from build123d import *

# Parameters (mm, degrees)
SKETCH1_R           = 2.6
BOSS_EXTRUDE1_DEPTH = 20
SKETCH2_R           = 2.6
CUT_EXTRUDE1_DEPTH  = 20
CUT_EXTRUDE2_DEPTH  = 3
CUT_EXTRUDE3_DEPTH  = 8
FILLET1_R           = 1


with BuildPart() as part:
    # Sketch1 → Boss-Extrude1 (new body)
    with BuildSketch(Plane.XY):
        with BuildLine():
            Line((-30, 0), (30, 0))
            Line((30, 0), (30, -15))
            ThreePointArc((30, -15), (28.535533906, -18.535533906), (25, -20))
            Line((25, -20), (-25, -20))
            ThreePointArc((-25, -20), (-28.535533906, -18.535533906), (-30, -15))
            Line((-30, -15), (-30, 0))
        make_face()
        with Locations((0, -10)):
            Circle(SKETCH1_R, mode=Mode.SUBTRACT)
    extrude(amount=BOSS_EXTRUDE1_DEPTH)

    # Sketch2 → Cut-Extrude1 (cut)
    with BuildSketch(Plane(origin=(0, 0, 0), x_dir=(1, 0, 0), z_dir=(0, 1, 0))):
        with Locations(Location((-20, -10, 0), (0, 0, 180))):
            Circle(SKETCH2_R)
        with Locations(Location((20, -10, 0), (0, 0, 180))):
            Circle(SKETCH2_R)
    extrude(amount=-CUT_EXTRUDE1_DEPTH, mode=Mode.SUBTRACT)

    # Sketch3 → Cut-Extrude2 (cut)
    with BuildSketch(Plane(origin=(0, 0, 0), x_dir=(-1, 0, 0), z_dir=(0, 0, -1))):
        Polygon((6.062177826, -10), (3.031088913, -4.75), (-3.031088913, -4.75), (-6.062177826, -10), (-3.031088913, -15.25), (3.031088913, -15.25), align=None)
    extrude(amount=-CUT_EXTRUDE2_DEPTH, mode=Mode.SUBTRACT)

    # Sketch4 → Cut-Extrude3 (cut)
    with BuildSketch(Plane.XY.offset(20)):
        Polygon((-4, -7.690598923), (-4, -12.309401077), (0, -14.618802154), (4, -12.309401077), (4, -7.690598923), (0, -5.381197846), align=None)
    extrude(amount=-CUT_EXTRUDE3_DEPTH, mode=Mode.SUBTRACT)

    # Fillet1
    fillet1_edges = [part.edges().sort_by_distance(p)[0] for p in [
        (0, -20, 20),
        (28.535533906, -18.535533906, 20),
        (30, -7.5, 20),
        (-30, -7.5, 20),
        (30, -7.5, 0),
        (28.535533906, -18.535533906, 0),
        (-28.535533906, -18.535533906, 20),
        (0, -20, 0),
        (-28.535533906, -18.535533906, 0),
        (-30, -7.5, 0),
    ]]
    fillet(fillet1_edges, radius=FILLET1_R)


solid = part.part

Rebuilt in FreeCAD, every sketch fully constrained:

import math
import FreeCAD as App
import Part
import Sketcher

V = App.Vector
Q = App.Units.Quantity


def edges_at(feature, points):
    """Names of the edges that pass closest to the given points."""
    edges = feature.Shape.Edges
    near = lambda p: min(range(len(edges)), key=lambda i: edges[i].distToShape(Part.Vertex(*p))[0])
    return sorted({f"Edge{near(p) + 1}" for p in points})

doc = App.newDocument("Part")
body = doc.addObject("PartDesign::Body", "Body")

sketch1 = doc.addObject("Sketcher::SketchObject", "Sketch")
body.addObject(sketch1)
sketch1.AttachmentSupport = (doc.XY_Plane, [""])
sketch1.MapMode = "FlatFace"
sketch1.addGeometry(Part.LineSegment(V(30, 0, 0), V(-30, 0, 0)), False)
sketch1.addGeometry(Part.LineSegment(V(-30, 0, 0), V(-30, -15, 0)), False)
sketch1.addGeometry(Part.ArcOfCircle(Part.Circle(V(-25, -15, 0), V(0, 0, 1), 5), math.radians(180), math.radians(270)), False)
sketch1.addGeometry(Part.LineSegment(V(-25, -20, 0), V(25, -20, 0)), False)
sketch1.addGeometry(Part.ArcOfCircle(Part.Circle(V(25, -15, 0), V(0, 0, 1), 5), math.radians(-90), math.radians(0)), False)
sketch1.addGeometry(Part.LineSegment(V(30, -15, 0), V(30, 0, 0)), False)
sketch1.addGeometry(Part.Circle(V(0, -10, 0), V(0, 0, 1), 2.6), False)
sketch1.addConstraint(Sketcher.Constraint("Coincident", 0, 2, 1, 1))
sketch1.addConstraint(Sketcher.Constraint("Tangent", 1, 2, 2, 1))
sketch1.addConstraint(Sketcher.Constraint("Tangent", 2, 2, 3, 1))
sketch1.addConstraint(Sketcher.Constraint("Tangent", 3, 2, 4, 1))
sketch1.addConstraint(Sketcher.Constraint("Tangent", 4, 2, 5, 1))
sketch1.addConstraint(Sketcher.Constraint("Coincident", 5, 2, 0, 1))
sketch1.addConstraint(Sketcher.Constraint("Horizontal", 0))
sketch1.addConstraint(Sketcher.Constraint("Vertical", 1))
sketch1.addConstraint(Sketcher.Constraint("Horizontal", 3))
sketch1.addConstraint(Sketcher.Constraint("Vertical", 5))
sketch1.addConstraint(Sketcher.Constraint("Equal", 2, 4))
sketch1.addConstraint(Sketcher.Constraint("Symmetric", 0, 2, 5, 2, -1, 1))
sketch1.addConstraint(Sketcher.Constraint("PointOnObject", 6, 3, -2))
sketch1.addConstraint(Sketcher.Constraint("Radius", 2, Q("5 mm")))
sketch1.addConstraint(Sketcher.Constraint("Diameter", 6, Q("5.2 mm")))
sketch1.addConstraint(Sketcher.Constraint("DistanceX", 0, 2, 0, 1, Q("60 mm")))
sketch1.addConstraint(Sketcher.Constraint("DistanceY", 1, 2, 1, 1, Q("15 mm")))
sketch1.addConstraint(Sketcher.Constraint("DistanceY", 6, 3, -1, 1, Q("10 mm")))
pad1 = doc.addObject("PartDesign::Pad", "Pad")
body.addObject(pad1)
pad1.Profile = sketch1
pad1.Length = 20

sketch2 = doc.addObject("Sketcher::SketchObject", "Sketch001")
body.addObject(sketch2)
sketch2.AttachmentSupport = (doc.XZ_Plane, [""])
sketch2.MapMode = "FlatFace"
sketch2.addGeometry(Part.Circle(V(-20, 10, 0), V(0, 0, 1), 2.6), False)
sketch2.addGeometry(Part.Circle(V(20, 10, 0), V(0, 0, 1), 2.6), False)
sketch2.addConstraint(Sketcher.Constraint("Equal", 0, 1))
sketch2.addConstraint(Sketcher.Constraint("Symmetric", 0, 3, 1, 3, -2))
sketch2.addConstraint(Sketcher.Constraint("Diameter", 0, Q("5.2 mm")))
sketch2.addConstraint(Sketcher.Constraint("DistanceX", 0, 3, -1, 1, Q("20 mm")))
sketch2.addConstraint(Sketcher.Constraint("DistanceY", -1, 1, 0, 3, Q("10 mm")))
pocket1 = doc.addObject("PartDesign::Pocket", "Pocket")
body.addObject(pocket1)
pocket1.Profile = sketch2
pocket1.Length = 20
pocket1.Reversed = True

sketch3 = doc.addObject("Sketcher::SketchObject", "Sketch002")
body.addObject(sketch3)
sketch3.AttachmentSupport = (doc.XY_Plane, [""])
sketch3.MapMode = "FlatFace"
sketch3.addGeometry(Part.LineSegment(V(-6, -10, 0), V(-3, -5, 0)), False)
sketch3.addGeometry(Part.LineSegment(V(-3, -5, 0), V(3, -5, 0)), False)
sketch3.addGeometry(Part.LineSegment(V(3, -5, 0), V(6, -10, 0)), False)
sketch3.addGeometry(Part.LineSegment(V(6, -10, 0), V(3, -15, 0)), False)
sketch3.addGeometry(Part.LineSegment(V(3, -15, 0), V(-3, -15, 0)), False)
sketch3.addGeometry(Part.LineSegment(V(-3, -15, 0), V(-6, -10, 0)), False)
sketch3.addConstraint(Sketcher.Constraint("Coincident", 0, 2, 1, 1))
sketch3.addConstraint(Sketcher.Constraint("Coincident", 1, 2, 2, 1))
sketch3.addConstraint(Sketcher.Constraint("Coincident", 2, 2, 3, 1))
sketch3.addConstraint(Sketcher.Constraint("Coincident", 3, 2, 4, 1))
sketch3.addConstraint(Sketcher.Constraint("Coincident", 4, 2, 5, 1))
sketch3.addConstraint(Sketcher.Constraint("Coincident", 5, 2, 0, 1))
sketch3.addConstraint(Sketcher.Constraint("Horizontal", 1))
sketch3.addConstraint(Sketcher.Constraint("Horizontal", 4))
sketch3.addConstraint(Sketcher.Constraint("Symmetric", 2, 2, 5, 2, -2))
sketch3.addConstraint(Sketcher.Constraint("Parallel", 0, 3))
sketch3.addConstraint(Sketcher.Constraint("Parallel", 2, 5))
sketch3.addConstraint(Sketcher.Constraint("Vertical", 1, 2, 3, 2))
sketch3.addConstraint(Sketcher.Constraint("Vertical", 0, 2, 4, 2))
sketch3.addConstraint(Sketcher.Constraint("Angle", 0, Q("60 deg")))
sketch3.addConstraint(Sketcher.Constraint("DistanceY", 2, 2, -1, 1, Q("10 mm")))
sketch3.addConstraint(Sketcher.Constraint("DistanceY", 3, 2, 1, 2, Q("10.5 mm")))
sketch3.addConstraint(Sketcher.Constraint("DistanceX", 1, 1, 1, 2, Q("6.062178 mm")))
pocket2 = doc.addObject("PartDesign::Pocket", "Pocket001")
body.addObject(pocket2)
pocket2.Profile = sketch3
pocket2.Length = 3
pocket2.Reversed = True

sketch4 = doc.addObject("Sketcher::SketchObject", "Sketch003")
body.addObject(sketch4)
sketch4.AttachmentSupport = (doc.XY_Plane, [""])
sketch4.MapMode = "FlatFace"
sketch4.AttachmentOffset = App.Placement(V(0, 0, 20), App.Rotation())
sketch4.addGeometry(Part.LineSegment(V(-4, -7.7, 0), V(-4, -12.3, 0)), False)
sketch4.addGeometry(Part.LineSegment(V(-4, -12.3, 0), V(0, -14.6, 0)), False)
sketch4.addGeometry(Part.LineSegment(V(0, -14.6, 0), V(4, -12.3, 0)), False)
sketch4.addGeometry(Part.LineSegment(V(4, -12.3, 0), V(4, -7.7, 0)), False)
sketch4.addGeometry(Part.LineSegment(V(4, -7.7, 0), V(0, -5.4, 0)), False)
sketch4.addGeometry(Part.LineSegment(V(0, -5.4, 0), V(-4, -7.7, 0)), False)
sketch4.addConstraint(Sketcher.Constraint("Coincident", 0, 2, 1, 1))
sketch4.addConstraint(Sketcher.Constraint("Coincident", 1, 2, 2, 1))
sketch4.addConstraint(Sketcher.Constraint("Coincident", 2, 2, 3, 1))
sketch4.addConstraint(Sketcher.Constraint("Coincident", 3, 2, 4, 1))
sketch4.addConstraint(Sketcher.Constraint("Coincident", 4, 2, 5, 1))
sketch4.addConstraint(Sketcher.Constraint("Coincident", 5, 2, 0, 1))
sketch4.addConstraint(Sketcher.Constraint("Vertical", 0))
sketch4.addConstraint(Sketcher.Constraint("Vertical", 3))
sketch4.addConstraint(Sketcher.Constraint("Symmetric", 0, 2, 2, 2, -2))
sketch4.addConstraint(Sketcher.Constraint("PointOnObject", 1, 2, -2))
sketch4.addConstraint(Sketcher.Constraint("PointOnObject", 4, 2, -2))
sketch4.addConstraint(Sketcher.Constraint("Parallel", 1, 4))
sketch4.addConstraint(Sketcher.Constraint("Parallel", 2, 5))
sketch4.addConstraint(Sketcher.Constraint("Angle", 1, Q("-30 deg")))
sketch4.addConstraint(Sketcher.Constraint("DistanceX", 0, 2, -1, 1, Q("4 mm")))
sketch4.addConstraint(Sketcher.Constraint("DistanceY", 0, 2, -1, 1, Q("12.309401 mm")))
sketch4.addConstraint(Sketcher.Constraint("DistanceY", 3, 2, -1, 1, Q("7.690599 mm")))
pocket3 = doc.addObject("PartDesign::Pocket", "Pocket002")
body.addObject(pocket3)
pocket3.Profile = sketch4
pocket3.Length = 8
doc.recompute()

fillet = doc.addObject("PartDesign::Fillet", "Fillet")
body.addObject(fillet)
fillet.Base = (pocket3, edges_at(pocket3, [
    (0, -20, 20),
    (28.536, -18.536, 20),
    (30, -7.5, 20),
    (-30, -7.5, 20),
    (30, -7.5, 0),
    (28.536, -18.536, 0),
    (-28.536, -18.536, 20),
    (0, -20, 0),
    (-28.536, -18.536, 0),
    (-30, -7.5, 0),
]))
fillet.Radius = 1

doc.recompute()
